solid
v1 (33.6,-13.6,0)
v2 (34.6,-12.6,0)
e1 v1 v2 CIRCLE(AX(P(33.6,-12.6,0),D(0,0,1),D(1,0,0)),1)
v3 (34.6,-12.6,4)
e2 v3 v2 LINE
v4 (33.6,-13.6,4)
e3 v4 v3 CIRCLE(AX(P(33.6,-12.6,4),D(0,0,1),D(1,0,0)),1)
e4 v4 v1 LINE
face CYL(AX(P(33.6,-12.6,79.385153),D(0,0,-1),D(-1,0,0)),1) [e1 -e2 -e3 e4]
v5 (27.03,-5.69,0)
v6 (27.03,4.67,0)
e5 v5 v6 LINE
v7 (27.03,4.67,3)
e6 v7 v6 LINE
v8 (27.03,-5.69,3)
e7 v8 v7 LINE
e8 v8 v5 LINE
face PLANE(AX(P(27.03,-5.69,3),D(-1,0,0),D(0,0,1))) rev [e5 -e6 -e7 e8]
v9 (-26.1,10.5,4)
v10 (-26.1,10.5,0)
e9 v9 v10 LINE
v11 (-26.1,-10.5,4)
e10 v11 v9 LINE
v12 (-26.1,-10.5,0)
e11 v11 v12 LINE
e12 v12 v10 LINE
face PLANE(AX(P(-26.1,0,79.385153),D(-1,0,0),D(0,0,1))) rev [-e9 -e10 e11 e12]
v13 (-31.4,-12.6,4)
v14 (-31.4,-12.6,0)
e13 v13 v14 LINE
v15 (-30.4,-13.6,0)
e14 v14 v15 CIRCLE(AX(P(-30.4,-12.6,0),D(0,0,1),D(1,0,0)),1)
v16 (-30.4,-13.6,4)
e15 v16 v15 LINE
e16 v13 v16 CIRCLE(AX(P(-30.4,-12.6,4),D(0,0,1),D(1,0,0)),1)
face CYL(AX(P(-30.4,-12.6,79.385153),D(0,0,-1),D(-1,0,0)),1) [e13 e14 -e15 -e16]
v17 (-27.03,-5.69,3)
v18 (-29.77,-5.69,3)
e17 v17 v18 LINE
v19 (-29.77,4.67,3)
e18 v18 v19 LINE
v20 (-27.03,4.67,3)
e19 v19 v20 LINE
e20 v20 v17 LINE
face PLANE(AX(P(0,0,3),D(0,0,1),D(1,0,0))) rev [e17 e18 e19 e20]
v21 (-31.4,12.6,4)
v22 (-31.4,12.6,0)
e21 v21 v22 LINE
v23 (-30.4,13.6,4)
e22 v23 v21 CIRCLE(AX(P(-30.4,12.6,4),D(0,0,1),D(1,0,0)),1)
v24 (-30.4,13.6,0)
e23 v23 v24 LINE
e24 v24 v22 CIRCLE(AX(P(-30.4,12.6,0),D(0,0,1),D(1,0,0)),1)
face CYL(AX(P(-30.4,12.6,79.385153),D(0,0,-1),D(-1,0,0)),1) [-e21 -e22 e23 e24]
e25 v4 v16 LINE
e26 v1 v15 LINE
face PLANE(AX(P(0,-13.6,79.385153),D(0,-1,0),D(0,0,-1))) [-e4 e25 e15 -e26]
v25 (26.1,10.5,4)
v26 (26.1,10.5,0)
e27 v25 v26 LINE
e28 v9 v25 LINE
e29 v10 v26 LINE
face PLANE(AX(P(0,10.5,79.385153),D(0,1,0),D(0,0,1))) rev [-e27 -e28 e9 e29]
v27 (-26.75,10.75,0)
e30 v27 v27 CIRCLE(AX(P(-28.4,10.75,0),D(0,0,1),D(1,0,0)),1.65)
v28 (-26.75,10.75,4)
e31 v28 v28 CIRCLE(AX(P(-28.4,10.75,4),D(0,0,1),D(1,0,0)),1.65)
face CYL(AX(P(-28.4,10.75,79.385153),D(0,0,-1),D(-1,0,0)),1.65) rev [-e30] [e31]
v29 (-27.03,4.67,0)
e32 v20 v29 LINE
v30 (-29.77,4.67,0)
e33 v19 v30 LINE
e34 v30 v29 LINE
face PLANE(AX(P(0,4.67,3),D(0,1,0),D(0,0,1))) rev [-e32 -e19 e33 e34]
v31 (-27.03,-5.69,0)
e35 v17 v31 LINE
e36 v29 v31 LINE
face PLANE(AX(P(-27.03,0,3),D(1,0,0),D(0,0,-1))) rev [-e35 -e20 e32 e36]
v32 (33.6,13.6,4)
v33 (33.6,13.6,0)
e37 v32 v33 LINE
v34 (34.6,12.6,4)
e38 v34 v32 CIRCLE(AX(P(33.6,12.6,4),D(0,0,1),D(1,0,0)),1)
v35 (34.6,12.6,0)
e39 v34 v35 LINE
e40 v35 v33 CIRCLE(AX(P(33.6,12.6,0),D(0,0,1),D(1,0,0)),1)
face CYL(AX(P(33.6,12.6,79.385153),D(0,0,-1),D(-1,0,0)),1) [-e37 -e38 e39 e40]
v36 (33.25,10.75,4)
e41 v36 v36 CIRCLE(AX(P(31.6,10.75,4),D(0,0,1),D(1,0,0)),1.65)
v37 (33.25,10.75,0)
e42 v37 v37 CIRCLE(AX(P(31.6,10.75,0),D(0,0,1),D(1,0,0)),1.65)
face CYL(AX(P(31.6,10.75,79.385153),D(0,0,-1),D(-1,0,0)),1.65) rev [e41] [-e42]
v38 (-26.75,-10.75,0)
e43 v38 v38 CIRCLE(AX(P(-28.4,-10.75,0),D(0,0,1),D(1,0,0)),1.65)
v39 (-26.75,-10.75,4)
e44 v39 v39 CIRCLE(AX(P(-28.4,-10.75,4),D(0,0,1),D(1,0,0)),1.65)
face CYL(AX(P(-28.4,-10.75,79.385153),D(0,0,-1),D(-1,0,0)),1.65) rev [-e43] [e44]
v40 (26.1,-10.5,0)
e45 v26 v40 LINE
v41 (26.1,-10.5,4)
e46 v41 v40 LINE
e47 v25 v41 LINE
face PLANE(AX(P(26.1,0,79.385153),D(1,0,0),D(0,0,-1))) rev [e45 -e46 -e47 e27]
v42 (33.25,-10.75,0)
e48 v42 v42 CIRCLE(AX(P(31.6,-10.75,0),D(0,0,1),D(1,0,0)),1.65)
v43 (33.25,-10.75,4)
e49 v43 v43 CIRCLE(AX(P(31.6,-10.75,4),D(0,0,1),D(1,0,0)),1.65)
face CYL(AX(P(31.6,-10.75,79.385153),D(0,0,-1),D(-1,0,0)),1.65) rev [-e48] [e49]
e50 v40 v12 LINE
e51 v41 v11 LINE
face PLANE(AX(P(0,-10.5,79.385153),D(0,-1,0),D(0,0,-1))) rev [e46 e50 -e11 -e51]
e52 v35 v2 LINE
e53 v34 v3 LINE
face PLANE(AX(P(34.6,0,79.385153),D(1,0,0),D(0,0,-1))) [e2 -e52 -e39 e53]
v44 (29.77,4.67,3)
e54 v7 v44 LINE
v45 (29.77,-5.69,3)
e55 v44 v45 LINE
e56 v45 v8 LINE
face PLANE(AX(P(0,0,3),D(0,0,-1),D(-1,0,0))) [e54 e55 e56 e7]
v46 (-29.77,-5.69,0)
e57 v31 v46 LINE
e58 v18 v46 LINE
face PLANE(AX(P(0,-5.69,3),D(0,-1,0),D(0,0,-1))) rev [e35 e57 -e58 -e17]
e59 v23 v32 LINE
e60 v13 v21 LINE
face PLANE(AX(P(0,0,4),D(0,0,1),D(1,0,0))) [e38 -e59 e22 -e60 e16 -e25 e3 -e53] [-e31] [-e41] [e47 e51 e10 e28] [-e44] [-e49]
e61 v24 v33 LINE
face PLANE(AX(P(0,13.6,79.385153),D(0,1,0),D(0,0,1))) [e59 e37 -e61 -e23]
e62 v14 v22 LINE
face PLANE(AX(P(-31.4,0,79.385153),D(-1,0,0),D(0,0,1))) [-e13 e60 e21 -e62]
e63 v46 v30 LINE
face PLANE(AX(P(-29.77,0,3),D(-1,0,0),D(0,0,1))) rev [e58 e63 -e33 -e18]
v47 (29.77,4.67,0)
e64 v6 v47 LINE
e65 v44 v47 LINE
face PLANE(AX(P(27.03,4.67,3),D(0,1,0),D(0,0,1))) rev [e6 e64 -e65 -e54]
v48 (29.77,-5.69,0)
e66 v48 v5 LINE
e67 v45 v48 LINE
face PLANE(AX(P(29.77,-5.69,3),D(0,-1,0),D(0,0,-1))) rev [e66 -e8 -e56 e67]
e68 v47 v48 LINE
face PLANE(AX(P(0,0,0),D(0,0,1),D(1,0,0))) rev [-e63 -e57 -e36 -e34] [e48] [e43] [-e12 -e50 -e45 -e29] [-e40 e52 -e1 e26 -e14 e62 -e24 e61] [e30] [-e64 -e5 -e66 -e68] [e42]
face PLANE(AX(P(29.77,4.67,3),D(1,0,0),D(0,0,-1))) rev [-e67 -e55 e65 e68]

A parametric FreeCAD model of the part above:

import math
import FreeCAD as App
import Part
import Sketcher

doc = App.newDocument("Part")
body = doc.addObject("PartDesign::Body", "Body")

sketch1 = doc.addObject("Sketcher::SketchObject", "Sketch")
body.addObject(sketch1)
sketch1.AttachmentSupport = (doc.XY_Plane, [""])
sketch1.MapMode = "FlatFace"
sketch1.addGeometry(Part.LineSegment(App.Vector(34.6, -12.6, 0), App.Vector(34.6, 12.6, 0)), False)
sketch1.addGeometry(Part.ArcOfCircle(Part.Circle(App.Vector(33.6, 12.6, 0), App.Vector(0, 0, 1), 1), math.radians(0), math.radians(90)), False)
sketch1.addGeometry(Part.LineSegment(App.Vector(33.6, 13.6, 0), App.Vector(-30.4, 13.6, 0)), False)
sketch1.addGeometry(Part.ArcOfCircle(Part.Circle(App.Vector(-30.4, 12.6, 0), App.Vector(0, 0, 1), 1), math.radians(90), math.radians(180)), False)
sketch1.addGeometry(Part.LineSegment(App.Vector(-31.4, 12.6, 0), App.Vector(-31.4, -12.6, 0)), False)
sketch1.addGeometry(Part.ArcOfCircle(Part.Circle(App.Vector(-30.4, -12.6, 0), App.Vector(0, 0, 1), 1), math.radians(-180), math.radians(-90)), False)
sketch1.addGeometry(Part.LineSegment(App.Vector(-30.4, -13.6, 0), App.Vector(33.6, -13.6, 0)), False)
sketch1.addGeometry(Part.ArcOfCircle(Part.Circle(App.Vector(33.6, -12.6, 0), App.Vector(0, 0, 1), 1), math.radians(-90), math.radians(0)), False)
sketch1.addGeometry(Part.Circle(App.Vector(31.6, -10.8, 0), App.Vector(0, 0, 1), 1.6), False)
sketch1.addGeometry(Part.Circle(App.Vector(-28.4, -10.8, 0), App.Vector(0, 0, 1), 1.6), False)
sketch1.addGeometry(Part.Circle(App.Vector(31.6, 10.8, 0), App.Vector(0, 0, 1), 1.6), False)
sketch1.addGeometry(Part.LineSegment(App.Vector(-26.1, -10.5, 0), App.Vector(-26.1, 10.5, 0)), False)
sketch1.addGeometry(Part.LineSegment(App.Vector(-26.1, 10.5, 0), App.Vector(26.1, 10.5, 0)), False)
sketch1.addGeometry(Part.LineSegment(App.Vector(26.1, 10.5, 0), App.Vector(26.1, -10.5, 0)), False)
sketch1.addGeometry(Part.LineSegment(App.Vector(26.1, -10.5, 0), App.Vector(-26.1, -10.5, 0)), False)
sketch1.addGeometry(Part.Circle(App.Vector(-28.4, 10.8, 0), App.Vector(0, 0, 1), 1.6), False)
sketch1.addConstraint(Sketcher.Constraint("Tangent", 0, 2, 1, 1))
sketch1.addConstraint(Sketcher.Constraint("Tangent", 1, 2, 2, 1))
sketch1.addConstraint(Sketcher.Constraint("Tangent", 2, 2, 3, 1))
sketch1.addConstraint(Sketcher.Constraint("Tangent", 3, 2, 4, 1))
sketch1.addConstraint(Sketcher.Constraint("Tangent", 4, 2, 5, 1))
sketch1.addConstraint(Sketcher.Constraint("Tangent", 5, 2, 6, 1))
sketch1.addConstraint(Sketcher.Constraint("Tangent", 6, 2, 7, 1))
sketch1.addConstraint(Sketcher.Constraint("Tangent", 7, 2, 0, 1))
sketch1.addConstraint(Sketcher.Constraint("Coincident", 11, 2, 12, 1))
sketch1.addConstraint(Sketcher.Constraint("Coincident", 12, 2, 13, 1))
sketch1.addConstraint(Sketcher.Constraint("Coincident", 13, 2, 14, 1))
sketch1.addConstraint(Sketcher.Constraint("Coincident", 14, 2, 11, 1))
sketch1.addConstraint(Sketcher.Constraint("Vertical", 0))
sketch1.addConstraint(Sketcher.Constraint("Horizontal", 2))
sketch1.addConstraint(Sketcher.Constraint("Vertical", 4))
sketch1.addConstraint(Sketcher.Constraint("Horizontal", 6))
sketch1.addConstraint(Sketcher.Constraint("Vertical", 11))
sketch1.addConstraint(Sketcher.Constraint("Horizontal", 12))
sketch1.addConstraint(Sketcher.Constraint("Vertical", 13))
sketch1.addConstraint(Sketcher.Constraint("Horizontal", 14))
sketch1.addConstraint(Sketcher.Constraint("Equal", 1, 3))
sketch1.addConstraint(Sketcher.Constraint("Equal", 3, 5))
sketch1.addConstraint(Sketcher.Constraint("Equal", 5, 7))
sketch1.addConstraint(Sketcher.Constraint("Equal", 8, 9))
sketch1.addConstraint(Sketcher.Constraint("Equal", 9, 10))
sketch1.addConstraint(Sketcher.Constraint("Equal", 10, 15))
sketch1.addConstraint(Sketcher.Constraint("Symmetric", 11, 2, 13, 2, -1, 1))
sketch1.addConstraint(Sketcher.Constraint("Symmetric", 8, 3, 10, 3, -1))
sketch1.addConstraint(Sketcher.Constraint("Symmetric", 9, 3, 15, 3, -1))
sketch1.addConstraint(Sketcher.Constraint("Horizontal", 8, 3, 9, 3))
sketch1.addConstraint(Sketcher.Constraint("Radius", 1, 1.0))
sketch1.addConstraint(Sketcher.Constraint("Diameter", 8, 3.3))
sketch1.addConstraint(Sketcher.Constraint("DistanceX", 2, 2, 2, 1, 64.0))
sketch1.addConstraint(Sketcher.Constraint("DistanceY", 11, 1, 11, 2, 21.0))
sketch1.addConstraint(Sketcher.Constraint("DistanceX", 12, 1, 12, 2, 52.2))
sketch1.addConstraint(Sketcher.Constraint("DistanceY", 0, 1, 0, 2, 25.2))
sketch1.addConstraint(Sketcher.Constraint("DistanceX", 8, 3, 7, 3, 2.0))
sketch1.addConstraint(Sketcher.Constraint("DistanceX", 5, 3, 9, 3, 2.0))
sketch1.addConstraint(Sketcher.Constraint("DistanceX", -1, 1, 1, 3, 33.6))
sketch1.addConstraint(Sketcher.Constraint("DistanceY", -1, 1, 1, 3, 12.6))
sketch1.addConstraint(Sketcher.Constraint("DistanceY", 8, 3, 10, 3, 21.5))
pad1 = doc.addObject("PartDesign::Pad", "Pad")
body.addObject(pad1)
pad1.Profile = sketch1
pad1.Length = 4

sketch2 = doc.addObject("Sketcher::SketchObject", "Sketch001")
body.addObject(sketch2)
sketch2.AttachmentSupport = (doc.XY_Plane, [""])
sketch2.MapMode = "FlatFace"
sketch2.addGeometry(Part.LineSegment(App.Vector(-29.8, 4.7, 0), App.Vector(-29.8, -5.7, 0)), False)
sketch2.addGeometry(Part.LineSegment(App.Vector(-29.8, -5.7, 0), App.Vector(-27, -5.7, 0)), False)
sketch2.addGeometry(Part.LineSegment(App.Vector(-27, -5.7, 0), App.Vector(-27, 4.7, 0)), False)
sketch2.addGeometry(Part.LineSegment(App.Vector(-27, 4.7, 0), App.Vector(-29.8, 4.7, 0)), False)
sketch2.addGeometry(Part.LineSegment(App.Vector(27, 4.7, 0), App.Vector(27, -5.7, 0)), False)
sketch2.addGeometry(Part.LineSegment(App.Vector(27, -5.7, 0), App.Vector(29.8, -5.7, 0)), False)
sketch2.addGeometry(Part.LineSegment(App.Vector(29.8, -5.7, 0), App.Vector(29.8, 4.7, 0)), False)
sketch2.addGeometry(Part.LineSegment(App.Vector(29.8, 4.7, 0), App.Vector(27, 4.7, 0)), False)
sketch2.addConstraint(Sketcher.Constraint("Coincident", 0, 2, 1, 1))
sketch2.addConstraint(Sketcher.Constraint("Coincident", 1, 2, 2, 1))
sketch2.addConstraint(Sketcher.Constraint("Coincident", 2, 2, 3, 1))
sketch2.addConstraint(Sketcher.Constraint("Coincident", 3, 2, 0, 1))
sketch2.addConstraint(Sketcher.Constraint("Coincident", 4, 2, 5, 1))
sketch2.addConstraint(Sketcher.Constraint("Coincident", 5, 2, 6, 1))
sketch2.addConstraint(Sketcher.Constraint("Coincident", 6, 2, 7, 1))
sketch2.addConstraint(Sketcher.Constraint("Coincident", 7, 2, 4, 1))
sketch2.addConstraint(Sketcher.Constraint("Vertical", 0))
sketch2.addConstraint(Sketcher.Constraint("Horizontal", 1))
sketch2.addConstraint(Sketcher.Constraint("Vertical", 2))
sketch2.addConstraint(Sketcher.Constraint("Horizontal", 3))
sketch2.addConstraint(Sketcher.Constraint("Vertical", 4))
sketch2.addConstraint(Sketcher.Constraint("Horizontal", 5))
sketch2.addConstraint(Sketcher.Constraint("Vertical", 6))
sketch2.addConstraint(Sketcher.Constraint("Horizontal", 7))
sketch2.addConstraint(Sketcher.Constraint("Symmetric", 1, 2, 4, 2, -2))
sketch2.addConstraint(Sketcher.Constraint("Symmetric", 3, 2, 6, 2, -2))
sketch2.addConstraint(Sketcher.Constraint("DistanceX", 1, 1, 1, 2, 2.74))
sketch2.addConstraint(Sketcher.Constraint("DistanceY", 0, 2, 0, 1, 10.36))
sketch2.addConstraint(Sketcher.Constraint("DistanceX", 0, 2, 4, 2, 56.8))
sketch2.addConstraint(Sketcher.Constraint("DistanceY", 0, 2, -1, 1, 5.69))
pocket1 = doc.addObject("PartDesign::Pocket", "Pocket")
body.addObject(pocket1)
pocket1.Profile = sketch2
pocket1.Length = 3
pocket1.Reversed = True

doc.recompute()
